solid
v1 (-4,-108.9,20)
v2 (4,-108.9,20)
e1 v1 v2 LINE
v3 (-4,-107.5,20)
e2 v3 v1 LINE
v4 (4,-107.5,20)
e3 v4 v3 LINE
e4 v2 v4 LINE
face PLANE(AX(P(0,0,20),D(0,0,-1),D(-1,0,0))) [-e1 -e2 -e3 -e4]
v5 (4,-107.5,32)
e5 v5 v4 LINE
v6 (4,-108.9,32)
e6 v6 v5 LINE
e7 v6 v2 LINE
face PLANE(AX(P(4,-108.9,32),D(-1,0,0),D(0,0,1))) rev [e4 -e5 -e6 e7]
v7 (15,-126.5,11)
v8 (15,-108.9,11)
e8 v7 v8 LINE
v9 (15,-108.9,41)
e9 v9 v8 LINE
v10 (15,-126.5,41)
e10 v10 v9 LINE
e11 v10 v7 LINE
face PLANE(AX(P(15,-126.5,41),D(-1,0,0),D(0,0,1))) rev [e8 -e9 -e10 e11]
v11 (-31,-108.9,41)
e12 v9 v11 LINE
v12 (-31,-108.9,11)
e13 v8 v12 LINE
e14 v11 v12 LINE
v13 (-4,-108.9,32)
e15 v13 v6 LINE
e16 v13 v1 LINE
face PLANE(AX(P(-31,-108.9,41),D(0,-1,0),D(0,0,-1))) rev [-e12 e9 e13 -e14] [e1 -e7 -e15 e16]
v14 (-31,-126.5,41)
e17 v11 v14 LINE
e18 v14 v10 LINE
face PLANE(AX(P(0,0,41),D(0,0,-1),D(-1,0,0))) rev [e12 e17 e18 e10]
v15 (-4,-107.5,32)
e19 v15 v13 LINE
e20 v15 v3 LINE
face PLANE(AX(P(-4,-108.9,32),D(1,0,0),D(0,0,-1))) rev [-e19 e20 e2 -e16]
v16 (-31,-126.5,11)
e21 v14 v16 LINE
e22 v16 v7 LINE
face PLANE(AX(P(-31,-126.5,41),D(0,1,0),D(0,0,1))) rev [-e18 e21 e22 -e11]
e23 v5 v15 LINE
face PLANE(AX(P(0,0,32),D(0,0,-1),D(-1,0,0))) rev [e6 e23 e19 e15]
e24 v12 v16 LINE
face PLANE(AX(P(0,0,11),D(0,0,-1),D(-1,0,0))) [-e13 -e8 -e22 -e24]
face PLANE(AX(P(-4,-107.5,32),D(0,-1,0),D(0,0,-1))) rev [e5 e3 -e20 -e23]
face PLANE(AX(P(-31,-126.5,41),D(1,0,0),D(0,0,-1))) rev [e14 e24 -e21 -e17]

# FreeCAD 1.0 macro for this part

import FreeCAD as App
import Part
import Sketcher

V = App.Vector
Q = App.Units.Quantity


def add_polygon(sketch, points):
    """Adds a closed chain of lines whose ends are joined by coincident constraints."""
    first, n = sketch.GeometryCount, len(points)
    for a, b in zip(points, points[1:] + points[:1]):
        sketch.addGeometry(Part.LineSegment(App.Vector(*a, 0), App.Vector(*b, 0)), False)
    for i in range(n):
        sketch.addConstraint(Sketcher.Constraint("Coincident", first + i, 2, first + (i + 1) % n, 1))

doc = App.newDocument("Part")
body = doc.addObject("PartDesign::Body", "Body")

# Sketch on XY plane
sketch1 = body.newObject("Sketcher::SketchObject", "Sketch")
sketch1.AttachmentSupport = (doc.getObject("XY_Plane"), [""])
sketch1.MapMode = "FlatFace"
sketch1.AttachmentOffset = App.Placement(V(0, 0, 11), App.Rotation())
add_polygon(sketch1, [(-31, -108.9), (-31, -126.5), (15, -126.5), (15, -108.9)])  # lines 0-3
sketch1.addConstraint([
    Sketcher.Constraint("Vertical", 0),
    Sketcher.Constraint("Horizontal", 1),
    Sketcher.Constraint("Vertical", 2),
    Sketcher.Constraint("Horizontal", 3),
    Sketcher.Constraint("DistanceX", 1, 1, 1, 2, Q("46 mm")),
    Sketcher.Constraint("DistanceY", 0, 2, 0, 1, Q("17.6 mm")),
    Sketcher.Constraint("DistanceX", 0, 2, -1, 1, Q("31 mm")),
    Sketcher.Constraint("DistanceY", 0, 2, -1, 1, Q("126.5 mm")),
])
pad1 = body.newObject("PartDesign::Pad", "Pad")
pad1.Profile = sketch1
pad1.Length = 30

# Sketch on XY plane
sketch2 = body.newObject("Sketcher::SketchObject", "Sketch001")
sketch2.AttachmentSupport = (doc.getObject("XY_Plane"), [""])
sketch2.MapMode = "FlatFace"
sketch2.AttachmentOffset = App.Placement(V(0, 0, 20), App.Rotation())
add_polygon(sketch2, [(-4, -107.5), (-4, -108.9), (4, -108.9), (4, -107.5)])  # lines 0-3
sketch2.addConstraint([
    Sketcher.Constraint("Vertical", 0),
    Sketcher.Constraint("Horizontal", 1),
    Sketcher.Constraint("Vertical", 2),
    Sketcher.Constraint("Horizontal", 3),
    Sketcher.Constraint("DistanceX", 1, 1, 1, 2, Q("8 mm")),
    Sketcher.Constraint("DistanceY", 0, 2, 0, 1, Q("1.4 mm")),
    Sketcher.Constraint("DistanceX", 0, 2, -1, 1, Q("4 mm")),
    Sketcher.Constraint("DistanceY", 0, 2, -1, 1, Q("108.9 mm")),
])
pad2 = body.newObject("PartDesign::Pad", "Pad001")
pad2.Profile = sketch2
pad2.Length = 12

doc.recompute()
